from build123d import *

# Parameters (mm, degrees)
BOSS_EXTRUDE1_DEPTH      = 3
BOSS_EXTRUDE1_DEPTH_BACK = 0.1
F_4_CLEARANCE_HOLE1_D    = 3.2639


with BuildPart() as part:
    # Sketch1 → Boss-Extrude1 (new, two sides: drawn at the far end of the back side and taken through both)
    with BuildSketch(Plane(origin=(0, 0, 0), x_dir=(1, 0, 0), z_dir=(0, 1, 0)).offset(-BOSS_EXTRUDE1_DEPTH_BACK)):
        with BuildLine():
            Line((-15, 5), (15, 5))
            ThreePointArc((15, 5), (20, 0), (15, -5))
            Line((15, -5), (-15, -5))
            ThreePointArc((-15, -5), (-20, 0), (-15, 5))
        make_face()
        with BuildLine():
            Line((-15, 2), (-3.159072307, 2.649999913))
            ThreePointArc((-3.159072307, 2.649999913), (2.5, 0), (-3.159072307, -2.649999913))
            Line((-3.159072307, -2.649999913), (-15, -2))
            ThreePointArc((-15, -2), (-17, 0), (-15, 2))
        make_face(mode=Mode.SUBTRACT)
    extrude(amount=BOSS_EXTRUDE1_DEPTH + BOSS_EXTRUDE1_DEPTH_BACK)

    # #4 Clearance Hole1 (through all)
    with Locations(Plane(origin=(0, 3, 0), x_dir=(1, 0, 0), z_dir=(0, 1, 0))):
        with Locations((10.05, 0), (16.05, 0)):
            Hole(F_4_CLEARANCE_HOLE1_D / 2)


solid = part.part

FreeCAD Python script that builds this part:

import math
import FreeCAD as App
import Part
import Sketcher
from FreeCAD import Vector
Q = App.Units.Quantity

doc = App.newDocument("Part")
body = doc.addObject("PartDesign::Body", "Body")

# Sketch on XZ plane
sketch1 = doc.addObject("Sketcher::SketchObject", "Sketch")
body.addObject(sketch1)
sketch1.AttachmentSupport = (doc.XZ_Plane, [""])
sketch1.MapMode = "FlatFace"
sketch1.addGeometry([
    Part.LineSegment(Vector(15, -5, 0), Vector(-15, -5, 0)),  # 0
    Part.ArcOfCircle(Part.Circle(Vector(-15, 0, 0), Vector(0, 0, 1), 5), math.radians(90), math.radians(270)),  # 1
    Part.LineSegment(Vector(-15, 5, 0), Vector(15, 5, 0)),  # 2
    Part.ArcOfCircle(Part.Circle(Vector(15, 0, 0), Vector(0, 0, 1), 5), math.radians(-90), math.radians(90)),  # 3
    Part.LineSegment(Vector(-15, -2, 0), Vector(-3.159072, -2.65, 0)),  # 4
    Part.ArcOfCircle(Part.Circle(Vector(-0.95, 0, 0), Vector(0, 0, 1), 3.45), math.radians(-129.815), math.radians(129.815)),  # 5
    Part.LineSegment(Vector(-3.159072, 2.65, 0), Vector(-15, 2, 0)),  # 6
    Part.ArcOfCircle(Part.Circle(Vector(-15, 0, 0), Vector(0, 0, 1), 2), math.radians(90), math.radians(270)),  # 7
], False)
sketch1.addConstraint([
    Sketcher.Constraint("Tangent", 0, 2, 1, 2),
    Sketcher.Constraint("Tangent", 1, 1, 2, 1),
    Sketcher.Constraint("Tangent", 2, 2, 3, 2),
    Sketcher.Constraint("Tangent", 3, 1, 0, 1),
    Sketcher.Constraint("Coincident", 4, 2, 5, 1),
    Sketcher.Constraint("Coincident", 5, 2, 6, 1),
    Sketcher.Constraint("Coincident", 6, 2, 7, 1),
    Sketcher.Constraint("Coincident", 7, 2, 4, 1),
    Sketcher.Constraint("Horizontal", 0),
    Sketcher.Constraint("Horizontal", 2),
    Sketcher.Constraint("Coincident", 7, 3, 1, 3),
    Sketcher.Constraint("Symmetric", 1, 3, 3, 3, -1, 1),
    Sketcher.Constraint("Symmetric", 4, 2, 5, 2, -1),
    Sketcher.Constraint("Vertical", 1, 1, 6, 2),
    Sketcher.Constraint("Vertical", 6, 2, 7, 2),
    Sketcher.Constraint("Radius", 1, Q("5 mm")),
    Sketcher.Constraint("Radius", 7, Q("2 mm")),
    Sketcher.Constraint("DistanceX", 0, 2, 0, 1, Q("30 mm")),
    Sketcher.Constraint("Radius", 5, Q("3.45 mm")),
    Sketcher.Constraint("DistanceY", 4, 2, 5, 2, Q("5.3 mm")),
    Sketcher.Constraint("DistanceX", 5, 3, -1, 1, Q("0.95 mm")),
])
pad1 = doc.addObject("PartDesign::Pad", "Pad")
body.addObject(pad1)
pad1.Profile = sketch1
pad1.Type = "TwoLengths"
pad1.Length = 3
pad1.Length2 = 0.1
pad1.Reversed = True

# Sketch on XZ plane
sketch2 = doc.addObject("Sketcher::SketchObject", "Sketch001")
body.addObject(sketch2)
sketch2.AttachmentSupport = (doc.XZ_Plane, [""])
sketch2.MapMode = "FlatFace"
sketch2.AttachmentOffset = App.Placement(Vector(0, 0, -3), App.Rotation())
sketch2.addGeometry([
    Part.Circle(Vector(10.05, 0, 0), Vector(0, 0, 1), 1.63195),
    Part.Circle(Vector(16.05, 0, 0), Vector(0, 0, 1), 1.63195),
], False)
sketch2.addConstraint([
    Sketcher.Constraint("Equal", 0, 1),
    Sketcher.Constraint("PointOnObject", 0, 3, -1),
    Sketcher.Constraint("PointOnObject", 1, 3, -1),
    Sketcher.Constraint("DistanceX", 0, 3, 1, 3, Q("6 mm")),
    Sketcher.Constraint("Diameter", 0, Q("3.2639 mm")),
    Sketcher.Constraint("DistanceX", -1, 1, 0, 3, Q("10.05 mm")),
])
doc.recompute()
hole = doc.addObject("PartDesign::Hole", "Hole")
body.addObject(hole)
hole.Profile = sketch2
hole.ThreadType = "None"
hole.Diameter = 3.2639
hole.DepthType = "ThroughAll"
hole.Reversed = True

doc.recompute()
